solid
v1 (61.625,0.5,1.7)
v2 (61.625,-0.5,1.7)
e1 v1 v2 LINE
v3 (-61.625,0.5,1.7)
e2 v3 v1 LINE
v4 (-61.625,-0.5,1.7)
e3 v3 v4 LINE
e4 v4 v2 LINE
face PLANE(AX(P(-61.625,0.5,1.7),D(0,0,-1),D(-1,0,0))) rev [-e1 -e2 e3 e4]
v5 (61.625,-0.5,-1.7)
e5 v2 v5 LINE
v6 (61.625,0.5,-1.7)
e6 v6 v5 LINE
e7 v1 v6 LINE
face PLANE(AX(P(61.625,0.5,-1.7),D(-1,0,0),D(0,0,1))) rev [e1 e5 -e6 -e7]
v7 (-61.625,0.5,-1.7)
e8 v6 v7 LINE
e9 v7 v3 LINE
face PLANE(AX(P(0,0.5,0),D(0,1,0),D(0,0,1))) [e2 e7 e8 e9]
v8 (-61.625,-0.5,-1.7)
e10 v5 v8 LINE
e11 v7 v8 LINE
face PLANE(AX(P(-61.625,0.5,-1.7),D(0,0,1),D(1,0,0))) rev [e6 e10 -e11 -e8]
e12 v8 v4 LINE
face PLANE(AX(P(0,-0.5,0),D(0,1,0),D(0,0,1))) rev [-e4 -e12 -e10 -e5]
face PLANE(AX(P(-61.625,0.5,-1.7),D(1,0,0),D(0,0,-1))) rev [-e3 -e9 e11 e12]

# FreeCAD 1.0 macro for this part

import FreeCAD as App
import Part
import Sketcher
from FreeCAD import Vector

doc = App.newDocument("Part")
body = doc.addObject("PartDesign::Body", "Body")

sketch1 = body.newObject("Sketcher::SketchObject", "Sketch")
sketch1.AttachmentSupport = (doc.getObject("XZ_Plane"), [""])
sketch1.MapMode = "FlatFace"
sketch1.addGeometry([
    Part.LineSegment(Vector(-61.625, -1.7, 0), Vector(-61.625, 1.7, 0)),
    Part.LineSegment(Vector(-61.625, 1.7, 0), Vector(61.625, 1.7, 0)),
    Part.LineSegment(Vector(61.625, 1.7, 0), Vector(61.625, -1.7, 0)),
    Part.LineSegment(Vector(61.625, -1.7, 0), Vector(-61.625, -1.7, 0)),
], False)
sketch1.addConstraint([
    Sketcher.Constraint("Coincident", 0, 2, 1, 1),
    Sketcher.Constraint("Coincident", 1, 2, 2, 1),
    Sketcher.Constraint("Coincident", 2, 2, 3, 1),
    Sketcher.Constraint("Coincident", 3, 2, 0, 1),
    Sketcher.Constraint("Vertical", 0),
    Sketcher.Constraint("Horizontal", 1),
    Sketcher.Constraint("Vertical", 2),
    Sketcher.Constraint("Horizontal", 3),
    Sketcher.Constraint("Symmetric", 0, 2, 2, 2, -1, 1),
    Sketcher.Constraint("DistanceY", 0, 1, 0, 2, 3.4),
    Sketcher.Constraint("DistanceX", 1, 1, 1, 2, 123.25),
])
pad1 = body.newObject("PartDesign::Pad", "Pad")
pad1.Profile = sketch1
pad1.Length = 1
pad1.Midplane = True

doc.recompute()
